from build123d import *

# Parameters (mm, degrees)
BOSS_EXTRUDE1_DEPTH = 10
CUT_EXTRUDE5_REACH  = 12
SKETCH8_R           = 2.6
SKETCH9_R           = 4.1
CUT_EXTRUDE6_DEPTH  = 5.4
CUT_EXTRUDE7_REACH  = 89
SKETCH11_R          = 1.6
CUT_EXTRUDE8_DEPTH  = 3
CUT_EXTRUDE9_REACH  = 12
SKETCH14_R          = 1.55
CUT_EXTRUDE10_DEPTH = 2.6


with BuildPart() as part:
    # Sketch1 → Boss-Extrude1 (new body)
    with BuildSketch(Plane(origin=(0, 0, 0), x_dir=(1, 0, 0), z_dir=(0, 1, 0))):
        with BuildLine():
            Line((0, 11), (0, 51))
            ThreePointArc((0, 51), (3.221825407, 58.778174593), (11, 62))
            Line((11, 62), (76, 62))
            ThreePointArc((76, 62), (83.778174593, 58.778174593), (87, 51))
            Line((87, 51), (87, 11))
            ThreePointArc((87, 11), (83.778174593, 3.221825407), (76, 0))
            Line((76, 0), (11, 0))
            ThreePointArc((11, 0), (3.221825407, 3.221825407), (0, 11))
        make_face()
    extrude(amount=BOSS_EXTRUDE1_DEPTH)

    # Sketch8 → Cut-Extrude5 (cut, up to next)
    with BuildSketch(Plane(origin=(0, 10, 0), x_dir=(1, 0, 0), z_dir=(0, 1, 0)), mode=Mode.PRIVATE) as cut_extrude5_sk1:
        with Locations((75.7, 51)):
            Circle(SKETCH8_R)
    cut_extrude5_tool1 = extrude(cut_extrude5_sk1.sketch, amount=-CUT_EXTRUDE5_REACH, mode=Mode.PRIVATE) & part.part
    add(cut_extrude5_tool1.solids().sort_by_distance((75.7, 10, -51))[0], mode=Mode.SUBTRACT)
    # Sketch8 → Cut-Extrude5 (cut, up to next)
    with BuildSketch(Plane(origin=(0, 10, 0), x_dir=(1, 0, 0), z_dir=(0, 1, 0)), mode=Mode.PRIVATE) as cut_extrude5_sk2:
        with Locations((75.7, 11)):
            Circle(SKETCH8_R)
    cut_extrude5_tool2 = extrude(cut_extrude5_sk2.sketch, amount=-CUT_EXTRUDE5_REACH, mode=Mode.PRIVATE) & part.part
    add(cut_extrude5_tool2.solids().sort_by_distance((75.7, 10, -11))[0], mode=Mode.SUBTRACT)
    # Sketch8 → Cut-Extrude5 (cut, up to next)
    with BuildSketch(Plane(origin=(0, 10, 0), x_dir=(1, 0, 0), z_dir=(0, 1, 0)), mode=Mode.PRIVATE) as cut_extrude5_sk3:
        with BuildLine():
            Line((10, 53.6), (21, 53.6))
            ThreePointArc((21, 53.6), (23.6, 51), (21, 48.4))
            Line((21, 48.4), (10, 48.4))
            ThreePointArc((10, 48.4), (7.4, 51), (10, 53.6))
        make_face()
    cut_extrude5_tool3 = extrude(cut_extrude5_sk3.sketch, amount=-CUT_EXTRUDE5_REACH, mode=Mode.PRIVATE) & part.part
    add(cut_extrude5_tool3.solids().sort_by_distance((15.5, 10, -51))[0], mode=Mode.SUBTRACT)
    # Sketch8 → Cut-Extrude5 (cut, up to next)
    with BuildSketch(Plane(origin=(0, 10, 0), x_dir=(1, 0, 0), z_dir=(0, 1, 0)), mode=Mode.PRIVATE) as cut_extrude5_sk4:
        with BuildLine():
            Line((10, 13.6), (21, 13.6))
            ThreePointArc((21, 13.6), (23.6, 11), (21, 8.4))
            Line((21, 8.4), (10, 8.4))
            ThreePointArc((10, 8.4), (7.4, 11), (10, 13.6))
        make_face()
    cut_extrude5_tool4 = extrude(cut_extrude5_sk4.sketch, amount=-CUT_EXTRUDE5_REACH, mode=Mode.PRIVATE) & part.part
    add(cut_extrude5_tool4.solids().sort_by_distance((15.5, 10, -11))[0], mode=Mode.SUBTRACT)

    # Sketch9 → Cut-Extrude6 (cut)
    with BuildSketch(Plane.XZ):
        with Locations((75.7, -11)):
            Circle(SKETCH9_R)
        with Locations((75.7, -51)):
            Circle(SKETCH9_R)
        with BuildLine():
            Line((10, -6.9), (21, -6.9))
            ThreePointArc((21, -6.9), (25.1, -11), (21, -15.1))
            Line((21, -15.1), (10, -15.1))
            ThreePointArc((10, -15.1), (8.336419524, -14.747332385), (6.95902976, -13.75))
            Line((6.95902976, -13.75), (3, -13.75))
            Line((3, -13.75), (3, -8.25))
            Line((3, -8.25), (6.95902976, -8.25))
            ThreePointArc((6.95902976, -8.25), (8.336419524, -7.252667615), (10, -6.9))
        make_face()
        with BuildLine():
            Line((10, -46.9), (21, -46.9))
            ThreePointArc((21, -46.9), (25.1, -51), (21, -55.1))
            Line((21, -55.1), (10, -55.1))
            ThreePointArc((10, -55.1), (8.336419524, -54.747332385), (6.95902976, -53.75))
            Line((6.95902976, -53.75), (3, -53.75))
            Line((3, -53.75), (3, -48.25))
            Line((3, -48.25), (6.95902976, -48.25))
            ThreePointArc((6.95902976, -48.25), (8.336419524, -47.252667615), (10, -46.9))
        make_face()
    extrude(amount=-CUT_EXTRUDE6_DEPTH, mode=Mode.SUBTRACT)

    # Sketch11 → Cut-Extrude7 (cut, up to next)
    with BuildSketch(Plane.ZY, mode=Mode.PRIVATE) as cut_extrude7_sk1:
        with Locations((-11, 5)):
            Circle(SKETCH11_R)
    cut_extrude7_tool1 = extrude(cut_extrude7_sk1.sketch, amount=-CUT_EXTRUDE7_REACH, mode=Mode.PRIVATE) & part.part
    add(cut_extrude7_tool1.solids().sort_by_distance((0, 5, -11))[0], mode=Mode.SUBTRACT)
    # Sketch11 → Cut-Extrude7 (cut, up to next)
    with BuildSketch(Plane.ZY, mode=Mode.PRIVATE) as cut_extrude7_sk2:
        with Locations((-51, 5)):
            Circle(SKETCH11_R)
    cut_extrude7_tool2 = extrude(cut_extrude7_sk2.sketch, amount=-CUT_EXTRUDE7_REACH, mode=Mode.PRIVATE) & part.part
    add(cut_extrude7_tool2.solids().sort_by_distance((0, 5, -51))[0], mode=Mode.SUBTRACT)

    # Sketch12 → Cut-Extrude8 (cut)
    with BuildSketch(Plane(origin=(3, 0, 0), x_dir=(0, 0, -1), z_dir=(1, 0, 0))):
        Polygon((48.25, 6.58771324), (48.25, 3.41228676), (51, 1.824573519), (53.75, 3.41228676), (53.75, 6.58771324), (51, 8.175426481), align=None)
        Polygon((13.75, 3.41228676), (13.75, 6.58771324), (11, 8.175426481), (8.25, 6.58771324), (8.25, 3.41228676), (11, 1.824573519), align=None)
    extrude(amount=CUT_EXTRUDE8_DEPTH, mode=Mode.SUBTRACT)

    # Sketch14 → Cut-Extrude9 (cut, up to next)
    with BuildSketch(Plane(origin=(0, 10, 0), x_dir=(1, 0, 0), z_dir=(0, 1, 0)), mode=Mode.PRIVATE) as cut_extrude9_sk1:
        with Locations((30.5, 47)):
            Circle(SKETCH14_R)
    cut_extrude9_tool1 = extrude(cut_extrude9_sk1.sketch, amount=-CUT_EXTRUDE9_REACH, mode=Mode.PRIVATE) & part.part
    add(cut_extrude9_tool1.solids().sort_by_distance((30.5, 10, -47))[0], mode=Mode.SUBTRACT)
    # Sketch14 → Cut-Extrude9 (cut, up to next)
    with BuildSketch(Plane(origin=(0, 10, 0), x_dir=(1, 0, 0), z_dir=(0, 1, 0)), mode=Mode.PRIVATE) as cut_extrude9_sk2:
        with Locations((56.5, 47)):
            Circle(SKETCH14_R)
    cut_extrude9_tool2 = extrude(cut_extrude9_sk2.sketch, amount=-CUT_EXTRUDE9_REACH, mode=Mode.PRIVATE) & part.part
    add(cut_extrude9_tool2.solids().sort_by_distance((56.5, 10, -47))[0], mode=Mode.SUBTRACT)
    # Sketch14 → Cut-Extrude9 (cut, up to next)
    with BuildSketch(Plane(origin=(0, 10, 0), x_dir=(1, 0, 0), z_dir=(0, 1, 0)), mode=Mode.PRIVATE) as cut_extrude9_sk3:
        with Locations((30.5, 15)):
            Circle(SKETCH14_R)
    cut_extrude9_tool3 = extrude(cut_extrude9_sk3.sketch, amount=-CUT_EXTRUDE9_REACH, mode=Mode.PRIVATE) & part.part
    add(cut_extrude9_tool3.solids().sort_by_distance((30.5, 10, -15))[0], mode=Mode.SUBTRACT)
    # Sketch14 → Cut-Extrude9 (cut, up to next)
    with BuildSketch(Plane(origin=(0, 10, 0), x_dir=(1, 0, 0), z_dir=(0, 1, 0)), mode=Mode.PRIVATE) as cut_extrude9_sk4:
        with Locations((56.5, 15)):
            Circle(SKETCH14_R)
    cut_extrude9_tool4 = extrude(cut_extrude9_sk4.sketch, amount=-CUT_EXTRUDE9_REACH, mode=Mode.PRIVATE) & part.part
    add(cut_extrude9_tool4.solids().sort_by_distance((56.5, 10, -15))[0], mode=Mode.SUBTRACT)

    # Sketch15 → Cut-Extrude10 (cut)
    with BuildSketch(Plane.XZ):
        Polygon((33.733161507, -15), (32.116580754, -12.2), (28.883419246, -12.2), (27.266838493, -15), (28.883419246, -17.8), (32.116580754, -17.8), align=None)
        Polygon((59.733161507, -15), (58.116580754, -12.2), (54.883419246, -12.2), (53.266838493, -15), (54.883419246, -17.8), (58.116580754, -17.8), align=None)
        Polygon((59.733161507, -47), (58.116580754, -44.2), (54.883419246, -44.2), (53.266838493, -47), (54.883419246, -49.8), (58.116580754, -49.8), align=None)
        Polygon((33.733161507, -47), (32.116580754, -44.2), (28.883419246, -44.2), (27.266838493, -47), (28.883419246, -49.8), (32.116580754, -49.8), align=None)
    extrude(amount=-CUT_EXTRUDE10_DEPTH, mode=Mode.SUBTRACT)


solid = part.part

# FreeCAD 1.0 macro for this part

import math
import FreeCAD as App
import Part
import Sketcher

V = App.Vector
Q = App.Units.Quantity


def add_polygon(sketch, points):
    """Adds a closed chain of lines whose ends are joined by coincident constraints."""
    first, n = sketch.GeometryCount, len(points)
    for a, b in zip(points, points[1:] + points[:1]):
        sketch.addGeometry(Part.LineSegment(App.Vector(*a, 0), App.Vector(*b, 0)), False)
    for i in range(n):
        sketch.addConstraint(Sketcher.Constraint("Coincident", first + i, 2, first + (i + 1) % n, 1))

doc = App.newDocument("Part")
body = doc.addObject("PartDesign::Body", "Body")

# Sketch on XZ plane
sketch1 = body.newObject("Sketcher::SketchObject", "Sketch")
sketch1.AttachmentSupport = (doc.getObject("XZ_Plane"), [""])
sketch1.MapMode = "FlatFace"
sketch1.addGeometry([
    Part.LineSegment(V(0, -51, 0), V(0, -11, 0)),  # 0
    Part.ArcOfCircle(Part.Circle(V(11, -11, 0), V(0, 0, 1), 11), math.radians(90), math.radians(180)),  # 1
    Part.LineSegment(V(11, 0, 0), V(76, 0, 0)),  # 2
    Part.ArcOfCircle(Part.Circle(V(76, -11, 0), V(0, 0, 1), 11), math.radians(0), math.radians(90)),  # 3
    Part.LineSegment(V(87, -11, 0), V(87, -51, 0)),  # 4
    Part.ArcOfCircle(Part.Circle(V(76, -51, 0), V(0, 0, 1), 11), math.radians(-90), math.radians(0)),  # 5
    Part.LineSegment(V(76, -62, 0), V(11, -62, 0)),  # 6
    Part.ArcOfCircle(Part.Circle(V(11, -51, 0), V(0, 0, 1), 11), math.radians(180), math.radians(270)),  # 7
], False)
sketch1.addConstraint([
    Sketcher.Constraint("Tangent", 0, 2, 1, 2),
    Sketcher.Constraint("Tangent", 1, 1, 2, 1),
    Sketcher.Constraint("Tangent", 2, 2, 3, 2),
    Sketcher.Constraint("Tangent", 3, 1, 4, 1),
    Sketcher.Constraint("Tangent", 4, 2, 5, 2),
    Sketcher.Constraint("Tangent", 5, 1, 6, 1),
    Sketcher.Constraint("Tangent", 6, 2, 7, 2),
    Sketcher.Constraint("Tangent", 7, 1, 0, 1),
    Sketcher.Constraint("Vertical", 0),
    Sketcher.Constraint("Horizontal", 2),
    Sketcher.Constraint("Vertical", 4),
    Sketcher.Constraint("Horizontal", 6),
    Sketcher.Constraint("Equal", 1, 3),
    Sketcher.Constraint("Equal", 3, 5),
    Sketcher.Constraint("Equal", 5, 7),
    Sketcher.Constraint("PointOnObject", 0, 2, -2),
    Sketcher.Constraint("PointOnObject", 1, 1, -1),
    Sketcher.Constraint("Radius", 1, 11.0),
    Sketcher.Constraint("DistanceX", 2, 1, 2, 2, 65.0),
    Sketcher.Constraint("DistanceY", 0, 1, 0, 2, 40.0),
])
pad1 = body.newObject("PartDesign::Pad", "Pad")
pad1.Profile = sketch1
pad1.Length = 10
pad1.Reversed = True

# Sketch on XZ plane
sketch2 = body.newObject("Sketcher::SketchObject", "Sketch001")
sketch2.AttachmentSupport = (doc.getObject("XZ_Plane"), [""])
sketch2.MapMode = "FlatFace"
sketch2.AttachmentOffset = App.Placement(V(0, 0, -10), App.Rotation())
sketch2.addGeometry(Part.Circle(V(75.7, -51, 0), V(0, 0, 1), 2.6), False)
sketch2.addConstraint([
    Sketcher.Constraint("Diameter", 0, 5.2),
    Sketcher.Constraint("DistanceY", 0, 3, -1, 1, 51.0),
    Sketcher.Constraint("DistanceX", -1, 1, 0, 3, 75.7),
])
pocket1 = body.newObject("PartDesign::Pocket", "Pocket")
pocket1.Profile = sketch2
pocket1.Type = "UpToFirst"
pocket1.Reversed = True

# Sketch on XZ plane
sketch3 = body.newObject("Sketcher::SketchObject", "Sketch002")
sketch3.AttachmentSupport = (doc.getObject("XZ_Plane"), [""])
sketch3.MapMode = "FlatFace"
sketch3.AttachmentOffset = App.Placement(V(0, 0, -10), App.Rotation())
sketch3.addGeometry(Part.Circle(V(75.7, -11, 0), V(0, 0, 1), 2.6), False)
sketch3.addConstraint([
    Sketcher.Constraint("Diameter", 0, 5.2),
    Sketcher.Constraint("DistanceY", 0, 3, -1, 1, 11.0),
    Sketcher.Constraint("DistanceX", -1, 1, 0, 3, 75.7),
])
pocket2 = body.newObject("PartDesign::Pocket", "Pocket001")
pocket2.Profile = sketch3
pocket2.Type = "UpToFirst"
pocket2.Reversed = True

# Sketch on XZ plane
sketch4 = body.newObject("Sketcher::SketchObject", "Sketch003")
sketch4.AttachmentSupport = (doc.getObject("XZ_Plane"), [""])
sketch4.MapMode = "FlatFace"
sketch4.AttachmentOffset = App.Placement(V(0, 0, -10), App.Rotation())
sketch4.addGeometry([
    Part.LineSegment(V(21, -53.6, 0), V(10, -53.6, 0)),
    Part.ArcOfCircle(Part.Circle(V(10, -51, 0), V(0, 0, 1), 2.6), math.radians(90), math.radians(270)),
    Part.LineSegment(V(10, -48.4, 0), V(21, -48.4, 0)),
    Part.ArcOfCircle(Part.Circle(V(21, -51, 0), V(0, 0, 1), 2.6), math.radians(-90), math.radians(90)),
], False)
sketch4.addConstraint([
    Sketcher.Constraint("Tangent", 0, 2, 1, 2),
    Sketcher.Constraint("Tangent", 1, 1, 2, 1),
    Sketcher.Constraint("Tangent", 2, 2, 3, 2),
    Sketcher.Constraint("Tangent", 3, 1, 0, 1),
    Sketcher.Constraint("Horizontal", 0),
    Sketcher.Constraint("Horizontal", 2),
    Sketcher.Constraint("Radius", 1, 2.6),
    Sketcher.Constraint("DistanceX", 0, 2, 0, 1, 11.0),
    Sketcher.Constraint("DistanceX", -1, 1, 1, 3, 10.0),
    Sketcher.Constraint("DistanceY", 1, 3, -1, 1, 51.0),
])
pocket3 = body.newObject("PartDesign::Pocket", "Pocket002")
pocket3.Profile = sketch4
pocket3.Type = "UpToFirst"
pocket3.Reversed = True

# Sketch on XZ plane
sketch5 = body.newObject("Sketcher::SketchObject", "Sketch004")
sketch5.AttachmentSupport = (doc.getObject("XZ_Plane"), [""])
sketch5.MapMode = "FlatFace"
sketch5.AttachmentOffset = App.Placement(V(0, 0, -10), App.Rotation())
sketch5.addGeometry([
    Part.LineSegment(V(21, -13.6, 0), V(10, -13.6, 0)),
    Part.ArcOfCircle(Part.Circle(V(10, -11, 0), V(0, 0, 1), 2.6), math.radians(90), math.radians(270)),
    Part.LineSegment(V(10, -8.4, 0), V(21, -8.4, 0)),
    Part.ArcOfCircle(Part.Circle(V(21, -11, 0), V(0, 0, 1), 2.6), math.radians(-90), math.radians(90)),
], False)
sketch5.addConstraint([
    Sketcher.Constraint("Tangent", 0, 2, 1, 2),
    Sketcher.Constraint("Tangent", 1, 1, 2, 1),
    Sketcher.Constraint("Tangent", 2, 2, 3, 2),
    Sketcher.Constraint("Tangent", 3, 1, 0, 1),
    Sketcher.Constraint("Horizontal", 0),
    Sketcher.Constraint("Horizontal", 2),
    Sketcher.Constraint("Radius", 1, 2.6),
    Sketcher.Constraint("DistanceX", 0, 2, 0, 1, 11.0),
    Sketcher.Constraint("DistanceX", -1, 1, 1, 3, 10.0),
    Sketcher.Constraint("DistanceY", 1, 3, -1, 1, 11.0),
])
pocket4 = body.newObject("PartDesign::Pocket", "Pocket003")
pocket4.Profile = sketch5
pocket4.Type = "UpToFirst"
pocket4.Reversed = True

# Sketch on XZ plane
sketch6 = body.newObject("Sketcher::SketchObject", "Sketch005")
sketch6.AttachmentSupport = (doc.getObject("XZ_Plane"), [""])
sketch6.MapMode = "FlatFace"
sketch6.addGeometry([
    Part.Circle(V(75.7, -11, 0), V(0, 0, 1), 4.1),  # 0
    Part.Circle(V(75.7, -51, 0), V(0, 0, 1), 4.1),  # 1
    Part.LineSegment(V(21, -6.9, 0), V(10, -6.9, 0)),  # 2
    Part.ArcOfCircle(Part.Circle(V(10, -11, 0), V(0, 0, 1), 4.1), math.radians(90), math.radians(138)),  # 3
    Part.LineSegment(V(7, -8.2, 0), V(3, -8.2, 0)),  # 4
    Part.LineSegment(V(3, -8.2, 0), V(3, -13.8, 0)),  # 5
    Part.LineSegment(V(3, -13.8, 0), V(7, -13.8, 0)),  # 6
    Part.ArcOfCircle(Part.Circle(V(10, -11, 0), V(0, 0, 1), 4.1), math.radians(-138), math.radians(-90)),  # 7
    Part.LineSegment(V(10, -15.1, 0), V(21, -15.1, 0)),  # 8
    Part.ArcOfCircle(Part.Circle(V(21, -11, 0), V(0, 0, 1), 4.1), math.radians(-90), math.radians(90)),  # 9
    Part.LineSegment(V(21, -46.9, 0), V(10, -46.9, 0)),  # 10
    Part.ArcOfCircle(Part.Circle(V(10, -51, 0), V(0, 0, 1), 4.1), math.radians(90), math.radians(138)),  # 11
    Part.LineSegment(V(7, -48.2, 0), V(3, -48.2, 0)),  # 12
    Part.LineSegment(V(3, -48.2, 0), V(3, -53.8, 0)),  # 13
    Part.LineSegment(V(3, -53.8, 0), V(7, -53.8, 0)),  # 14
    Part.ArcOfCircle(Part.Circle(V(10, -51, 0), V(0, 0, 1), 4.1), math.radians(-138), math.radians(-90)),  # 15
    Part.LineSegment(V(10, -55.1, 0), V(21, -55.1, 0)),  # 16
    Part.ArcOfCircle(Part.Circle(V(21, -51, 0), V(0, 0, 1), 4.1), math.radians(-90), math.radians(90)),  # 17
], False)
sketch6.addConstraint([
    Sketcher.Constraint("Tangent", 2, 2, 3, 1),
    Sketcher.Constraint("Coincident", 3, 2, 4, 1),
    Sketcher.Constraint("Coincident", 4, 2, 5, 1),
    Sketcher.Constraint("Coincident", 5, 2, 6, 1),
    Sketcher.Constraint("Coincident", 6, 2, 7, 1),
    Sketcher.Constraint("Tangent", 7, 2, 8, 1),
    Sketcher.Constraint("Tangent", 8, 2, 9, 1),
    Sketcher.Constraint("Tangent", 9, 2, 2, 1),
    Sketcher.Constraint("Tangent", 10, 2, 11, 1),
    Sketcher.Constraint("Coincident", 11, 2, 12, 1),
    Sketcher.Constraint("Coincident", 12, 2, 13, 1),
    Sketcher.Constraint("Coincident", 13, 2, 14, 1),
    Sketcher.Constraint("Coincident", 14, 2, 15, 1),
    Sketcher.Constraint("Tangent", 15, 2, 16, 1),
    Sketcher.Constraint("Tangent", 16, 2, 17, 1),
    Sketcher.Constraint("Tangent", 17, 2, 10, 1),
    Sketcher.Constraint("Horizontal", 2),
    Sketcher.Constraint("Horizontal", 4),
    Sketcher.Constraint("Vertical", 5),
    Sketcher.Constraint("Horizontal", 6),
    Sketcher.Constraint("Horizontal", 8),
    Sketcher.Constraint("Horizontal", 10),
    Sketcher.Constraint("Horizontal", 12),
    Sketcher.Constraint("Vertical", 13),
    Sketcher.Constraint("Horizontal", 14),
    Sketcher.Constraint("Horizontal", 16),
    Sketcher.Constraint("Coincident", 7, 3, 3, 3),
    Sketcher.Constraint("Coincident", 15, 3, 11, 3),
    Sketcher.Constraint("Equal", 0, 1),
    Sketcher.Constraint("Equal", 1, 3),
    Sketcher.Constraint("Equal", 3, 7),
    Sketcher.Constraint("Equal", 9, 11),
    Sketcher.Constraint("Equal", 11, 15),
    Sketcher.Constraint("Horizontal", 0, 3, 3, 3),
    Sketcher.Constraint("Horizontal", 1, 3, 11, 3),
    Sketcher.Constraint("Vertical", 0, 3, 1, 3),
    Sketcher.Constraint("Vertical", 7, 3, 11, 3),
    Sketcher.Constraint("Vertical", 9, 3, 17, 3),
    Sketcher.Constraint("Vertical", 3, 2, 6, 2),
    Sketcher.Constraint("Vertical", 6, 2, 11, 2),
    Sketcher.Constraint("Vertical", 5, 2, 12, 2),
    Sketcher.Constraint("Vertical", 11, 2, 14, 2),
    Sketcher.Constraint("Diameter", 0, 8.2),
    Sketcher.Constraint("DistanceX", 2, 2, 2, 1, 11.0),
    Sketcher.Constraint("DistanceY", 5, 2, 5, 1, 5.5),
    Sketcher.Constraint("DistanceY", 0, 3, -1, 1, 11.0),
    Sketcher.Constraint("DistanceY", 1, 3, -1, 1, 51.0),
    Sketcher.Constraint("DistanceX", -1, 1, 3, 3, 10.0),
    Sketcher.Constraint("DistanceX", -1, 1, 4, 2, 3.0),
    Sketcher.Constraint("DistanceX", -1, 1, 0, 3, 75.7),
])
pocket5 = body.newObject("PartDesign::Pocket", "Pocket004")
pocket5.Profile = sketch6
pocket5.Length = 5.4

# Sketch on YZ plane
sketch7 = body.newObject("Sketcher::SketchObject", "Sketch006")
sketch7.AttachmentSupport = (doc.getObject("YZ_Plane"), [""])
sketch7.MapMode = "FlatFace"
sketch7.addGeometry(Part.Circle(V(5, -11, 0), V(0, 0, 1), 1.6), False)
sketch7.addConstraint([
    Sketcher.Constraint("Diameter", 0, 3.2),
    Sketcher.Constraint("DistanceX", -1, 1, 0, 3, 5.0),
    Sketcher.Constraint("DistanceY", 0, 3, -1, 1, 11.0),
])
pocket6 = body.newObject("PartDesign::Pocket", "Pocket005")
pocket6.Profile = sketch7
pocket6.Length = 7.911939
pocket6.Reversed = True

# Sketch on YZ plane
sketch8 = body.newObject("Sketcher::SketchObject", "Sketch007")
sketch8.AttachmentSupport = (doc.getObject("YZ_Plane"), [""])
sketch8.MapMode = "FlatFace"
sketch8.addGeometry(Part.Circle(V(5, -51, 0), V(0, 0, 1), 1.6), False)
sketch8.addConstraint([
    Sketcher.Constraint("Diameter", 0, 3.2),
    Sketcher.Constraint("DistanceX", -1, 1, 0, 3, 5.0),
    Sketcher.Constraint("DistanceY", 0, 3, -1, 1, 51.0),
])
pocket7 = body.newObject("PartDesign::Pocket", "Pocket006")
pocket7.Profile = sketch8
pocket7.Length = 7.911939
pocket7.Reversed = True

# Sketch on YZ plane
sketch9 = body.newObject("Sketcher::SketchObject", "Sketch008")
sketch9.AttachmentSupport = (doc.getObject("YZ_Plane"), [""])
sketch9.MapMode = "FlatFace"
sketch9.AttachmentOffset = App.Placement(V(0, 0, 3), App.Rotation())
add_polygon(sketch9, [(6.6, -48.2), (3.4, -48.2), (1.8, -51), (3.4, -53.8), (6.6, -53.8), (8.2, -51)])  # lines 0-5
add_polygon(sketch9, [(3.4, -13.8), (6.6, -13.8), (8.2, -11), (6.6, -8.2), (3.4, -8.2), (1.8, -11)])  # lines 6-11
sketch9.addConstraint([
    Sketcher.Constraint("Horizontal", 0),
    Sketcher.Constraint("Horizontal", 3),
    Sketcher.Constraint("Horizontal", 6),
    Sketcher.Constraint("Horizontal", 9),
    Sketcher.Constraint("Parallel", 1, 4),
    Sketcher.Constraint("Parallel", 2, 5),
    Sketcher.Constraint("Parallel", 4, 7),
    Sketcher.Constraint("Parallel", 5, 8),
    Sketcher.Constraint("Parallel", 7, 10),
    Sketcher.Constraint("Parallel", 8, 11),
    Sketcher.Constraint("Horizontal", 1, 2, 4, 2),
    Sketcher.Constraint("Horizontal", 7, 2, 10, 2),
    Sketcher.Constraint("Vertical", 0, 2, 2, 2),
    Sketcher.Constraint("Vertical", 3, 2, 5, 2),
    Sketcher.Constraint("Vertical", 5, 2, 6, 2),
    Sketcher.Constraint("Vertical", 4, 2, 7, 2),
    Sketcher.Constraint("Vertical", 6, 2, 8, 2),
    Sketcher.Constraint("Vertical", 2, 2, 9, 2),
    Sketcher.Constraint("Angle", 1, Q("-120 deg")),
    Sketcher.Constraint("DistanceY", 1, 2, -1, 1, 51.0),
    Sketcher.Constraint("DistanceY", 7, 2, -1, 1, 11.0),
    Sketcher.Constraint("DistanceY", 2, 2, 0, 2, 5.5),
    Sketcher.Constraint("DistanceX", 0, 2, 0, 1, 3.175426),
    Sketcher.Constraint("DistanceX", -1, 1, 0, 2, 3.412287),
])
pocket8 = body.newObject("PartDesign::Pocket", "Pocket007")
pocket8.Profile = sketch9
pocket8.Length = 3
pocket8.Reversed = True

# Sketch on XZ plane
sketch10 = body.newObject("Sketcher::SketchObject", "Sketch009")
sketch10.AttachmentSupport = (doc.getObject("XZ_Plane"), [""])
sketch10.MapMode = "FlatFace"
sketch10.AttachmentOffset = App.Placement(V(0, 0, -10), App.Rotation())
sketch10.addGeometry(Part.Circle(V(30.5, -47, 0), V(0, 0, 1), 1.6), False)
sketch10.addConstraint([
    Sketcher.Constraint("Diameter", 0, 3.1),
    Sketcher.Constraint("DistanceY", 0, 3, -1, 1, 47.0),
    Sketcher.Constraint("DistanceX", -1, 1, 0, 3, 30.5),
])
pocket9 = body.newObject("PartDesign::Pocket", "Pocket008")
pocket9.Profile = sketch10
pocket9.Type = "UpToFirst"
pocket9.Reversed = True

# Sketch on XZ plane
sketch11 = body.newObject("Sketcher::SketchObject", "Sketch010")
sketch11.AttachmentSupport = (doc.getObject("XZ_Plane"), [""])
sketch11.MapMode = "FlatFace"
sketch11.AttachmentOffset = App.Placement(V(0, 0, -10), App.Rotation())
sketch11.addGeometry(Part.Circle(V(56.5, -47, 0), V(0, 0, 1), 1.6), False)
sketch11.addConstraint([
    Sketcher.Constraint("Diameter", 0, 3.1),
    Sketcher.Constraint("DistanceY", 0, 3, -1, 1, 47.0),
    Sketcher.Constraint("DistanceX", -1, 1, 0, 3, 56.5),
])
pocket10 = body.newObject("PartDesign::Pocket", "Pocket009")
pocket10.Profile = sketch11
pocket10.Type = "UpToFirst"
pocket10.Reversed = True

# Sketch on XZ plane
sketch12 = body.newObject("Sketcher::SketchObject", "Sketch011")
sketch12.AttachmentSupport = (doc.getObject("XZ_Plane"), [""])
sketch12.MapMode = "FlatFace"
sketch12.AttachmentOffset = App.Placement(V(0, 0, -10), App.Rotation())
sketch12.addGeometry(Part.Circle(V(30.5, -15, 0), V(0, 0, 1), 1.6), False)
sketch12.addConstraint([
    Sketcher.Constraint("Diameter", 0, 3.1),
    Sketcher.Constraint("DistanceY", 0, 3, -1, 1, 15.0),
    Sketcher.Constraint("DistanceX", -1, 1, 0, 3, 30.5),
])
pocket11 = body.newObject("PartDesign::Pocket", "Pocket010")
pocket11.Profile = sketch12
pocket11.Type = "UpToFirst"
pocket11.Reversed = True

# Sketch on XZ plane
sketch13 = body.newObject("Sketcher::SketchObject", "Sketch012")
sketch13.AttachmentSupport = (doc.getObject("XZ_Plane"), [""])
sketch13.MapMode = "FlatFace"
sketch13.AttachmentOffset = App.Placement(V(0, 0, -10), App.Rotation())
sketch13.addGeometry(Part.Circle(V(56.5, -15, 0), V(0, 0, 1), 1.6), False)
sketch13.addConstraint([
    Sketcher.Constraint("Diameter", 0, 3.1),
    Sketcher.Constraint("DistanceY", 0, 3, -1, 1, 15.0),
    Sketcher.Constraint("DistanceX", -1, 1, 0, 3, 56.5),
])
pocket12 = body.newObject("PartDesign::Pocket", "Pocket011")
pocket12.Profile = sketch13
pocket12.Type = "UpToFirst"
pocket12.Reversed = True

# Sketch on XZ plane
sketch14 = body.newObject("Sketcher::SketchObject", "Sketch013")
sketch14.AttachmentSupport = (doc.getObject("XZ_Plane"), [""])
sketch14.MapMode = "FlatFace"
add_polygon(sketch14, [(33.7, -15), (32.1, -12.2), (28.9, -12.2), (27.3, -15), (28.9, -17.8), (32.1, -17.8)])  # lines 0-5
add_polygon(sketch14, [(59.7, -15), (58.1, -12.2), (54.9, -12.2), (53.3, -15), (54.9, -17.8), (58.1, -17.8)])  # lines 6-11
add_polygon(sketch14, [(59.7, -47), (58.1, -44.2), (54.9, -44.2), (53.3, -47), (54.9, -49.8), (58.1, -49.8)])  # lines 12-17
add_polygon(sketch14, [(33.7, -47), (32.1, -44.2), (28.9, -44.2), (27.3, -47), (28.9, -49.8), (32.1, -49.8)])  # lines 18-23
sketch14.addConstraint([
    Sketcher.Constraint("Horizontal", 1),
    Sketcher.Constraint("Horizontal", 4),
    Sketcher.Constraint("Horizontal", 7),
    Sketcher.Constraint("Horizontal", 10),
    Sketcher.Constraint("Horizontal", 13),
    Sketcher.Constraint("Horizontal", 16),
    Sketcher.Constraint("Horizontal", 19),
    Sketcher.Constraint("Horizontal", 22),
    Sketcher.Constraint("Parallel", 0, 3),
    Sketcher.Constraint("Parallel", 2, 5),
    Sketcher.Constraint("Parallel", 3, 6),
    Sketcher.Constraint("Parallel", 5, 8),
    Sketcher.Constraint("Parallel", 6, 9),
    Sketcher.Constraint("Parallel", 8, 11),
    Sketcher.Constraint("Parallel", 9, 12),
    Sketcher.Constraint("Parallel", 11, 14),
    Sketcher.Constraint("Parallel", 12, 15),
    Sketcher.Constraint("Parallel", 14, 17),
    Sketcher.Constraint("Parallel", 15, 18),
    Sketcher.Constraint("Parallel", 17, 20),
    Sketcher.Constraint("Parallel", 18, 21),
    Sketcher.Constraint("Parallel", 20, 23),
    Sketcher.Constraint("Horizontal", 2, 2, 5, 2),
    Sketcher.Constraint("Horizontal", 1, 2, 6, 2),
    Sketcher.Constraint("Horizontal", 5, 2, 8, 2),
    Sketcher.Constraint("Horizontal", 4, 2, 9, 2),
    Sketcher.Constraint("Horizontal", 8, 2, 11, 2),
    Sketcher.Constraint("Horizontal", 14, 2, 17, 2),
    Sketcher.Constraint("Horizontal", 13, 2, 18, 2),
    Sketcher.Constraint("Horizontal", 17, 2, 20, 2),
    Sketcher.Constraint("Horizontal", 16, 2, 21, 2),
    Sketcher.Constraint("Horizontal", 20, 2, 23, 2),
    Sketcher.Constraint("Vertical", 1, 2, 3, 2),
    Sketcher.Constraint("Vertical", 0, 2, 4, 2),
    Sketcher.Constraint("Vertical", 10, 2, 12, 2),
    Sketcher.Constraint("Vertical", 9, 2, 13, 2),
    Sketcher.Constraint("Vertical", 8, 2, 14, 2),
    Sketcher.Constraint("Vertical", 13, 2, 15, 2),
    Sketcher.Constraint("Vertical", 4, 2, 18, 2),
    Sketcher.Constraint("Vertical", 3, 2, 19, 2),
    Sketcher.Constraint("Equal", 4, 7),
    Sketcher.Constraint("Angle", 0, Q("120 deg")),
    Sketcher.Constraint("DistanceY", 2, 2, -1, 1, 15.0),
    Sketcher.Constraint("DistanceY", 14, 2, -1, 1, 47.0),
    Sketcher.Constraint("DistanceX", 0, 2, 6, 2, 26.0),
    Sketcher.Constraint("DistanceY", 0, 2, -1, 1, 12.2),
    Sketcher.Constraint("DistanceX", 1, 2, 1, 1, 3.233162),
    Sketcher.Constraint("DistanceX", -1, 1, 0, 2, 32.116581),
])
pocket13 = body.newObject("PartDesign::Pocket", "Pocket012")
pocket13.Profile = sketch14
pocket13.Length = 2.6

doc.recompute()
